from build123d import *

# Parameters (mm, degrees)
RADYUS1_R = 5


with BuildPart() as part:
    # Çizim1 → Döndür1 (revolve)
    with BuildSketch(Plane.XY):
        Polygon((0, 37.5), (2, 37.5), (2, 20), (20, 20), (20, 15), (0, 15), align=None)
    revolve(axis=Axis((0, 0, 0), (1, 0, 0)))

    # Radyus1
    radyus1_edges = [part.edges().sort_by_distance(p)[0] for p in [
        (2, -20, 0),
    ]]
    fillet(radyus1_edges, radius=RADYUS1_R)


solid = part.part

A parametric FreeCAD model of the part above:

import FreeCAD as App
import Part
import Sketcher
Q = App.Units.Quantity


def edges_at(feature, points):
    """Names of the edges that pass closest to the given points."""
    edges = feature.Shape.Edges
    near = lambda p: min(range(len(edges)), key=lambda i: edges[i].distToShape(Part.Vertex(*p))[0])
    return sorted({f"Edge{near(p) + 1}" for p in points})


def add_polygon(sketch, points):
    """Adds a closed chain of lines whose ends are joined by coincident constraints."""
    first, n = sketch.GeometryCount, len(points)
    for a, b in zip(points, points[1:] + points[:1]):
        sketch.addGeometry(Part.LineSegment(App.Vector(*a, 0), App.Vector(*b, 0)), False)
    for i in range(n):
        sketch.addConstraint(Sketcher.Constraint("Coincident", first + i, 2, first + (i + 1) % n, 1))

doc = App.newDocument("Part")
body = doc.addObject("PartDesign::Body", "Body")

# Sketch on XY plane
sketch1 = body.newObject("Sketcher::SketchObject", "Sketch")
sketch1.AttachmentSupport = (doc.getObject("XY_Plane"), [""])
sketch1.MapMode = "FlatFace"
add_polygon(sketch1, [(2, 37.5), (0, 37.5), (0, 15), (20, 15), (20, 20), (2, 20)])  # lines 0-5
sketch1.addConstraint(Sketcher.Constraint("Horizontal", 0))
sketch1.addConstraint(Sketcher.Constraint("Vertical", 1))
sketch1.addConstraint(Sketcher.Constraint("Horizontal", 2))
sketch1.addConstraint(Sketcher.Constraint("Vertical", 3))
sketch1.addConstraint(Sketcher.Constraint("Horizontal", 4))
sketch1.addConstraint(Sketcher.Constraint("Vertical", 5))
sketch1.addConstraint(Sketcher.Constraint("PointOnObject", 0, 2, -2))
sketch1.addConstraint(Sketcher.Constraint("DistanceX", 0, 2, 0, 1, Q("2 mm")))
sketch1.addConstraint(Sketcher.Constraint("DistanceX", 2, 1, 2, 2, Q("20 mm")))
sketch1.addConstraint(Sketcher.Constraint("DistanceY", 3, 1, 3, 2, Q("5 mm")))
sketch1.addConstraint(Sketcher.Constraint("DistanceY", 1, 2, 1, 1, Q("22.5 mm")))
sketch1.addConstraint(Sketcher.Constraint("DistanceY", -1, 1, 1, 2, Q("15 mm")))
revolution = body.newObject("PartDesign::Revolution", "Revolution")
revolution.Profile = sketch1
revolution.ReferenceAxis = (sketch1, ["H_Axis"])
revolution.Angle = 360
doc.recompute()

fillet = body.newObject("PartDesign::Fillet", "Fillet")
fillet.Base = (revolution, edges_at(revolution, [(2, -20, 0)]))
fillet.Radius = 5

doc.recompute()
